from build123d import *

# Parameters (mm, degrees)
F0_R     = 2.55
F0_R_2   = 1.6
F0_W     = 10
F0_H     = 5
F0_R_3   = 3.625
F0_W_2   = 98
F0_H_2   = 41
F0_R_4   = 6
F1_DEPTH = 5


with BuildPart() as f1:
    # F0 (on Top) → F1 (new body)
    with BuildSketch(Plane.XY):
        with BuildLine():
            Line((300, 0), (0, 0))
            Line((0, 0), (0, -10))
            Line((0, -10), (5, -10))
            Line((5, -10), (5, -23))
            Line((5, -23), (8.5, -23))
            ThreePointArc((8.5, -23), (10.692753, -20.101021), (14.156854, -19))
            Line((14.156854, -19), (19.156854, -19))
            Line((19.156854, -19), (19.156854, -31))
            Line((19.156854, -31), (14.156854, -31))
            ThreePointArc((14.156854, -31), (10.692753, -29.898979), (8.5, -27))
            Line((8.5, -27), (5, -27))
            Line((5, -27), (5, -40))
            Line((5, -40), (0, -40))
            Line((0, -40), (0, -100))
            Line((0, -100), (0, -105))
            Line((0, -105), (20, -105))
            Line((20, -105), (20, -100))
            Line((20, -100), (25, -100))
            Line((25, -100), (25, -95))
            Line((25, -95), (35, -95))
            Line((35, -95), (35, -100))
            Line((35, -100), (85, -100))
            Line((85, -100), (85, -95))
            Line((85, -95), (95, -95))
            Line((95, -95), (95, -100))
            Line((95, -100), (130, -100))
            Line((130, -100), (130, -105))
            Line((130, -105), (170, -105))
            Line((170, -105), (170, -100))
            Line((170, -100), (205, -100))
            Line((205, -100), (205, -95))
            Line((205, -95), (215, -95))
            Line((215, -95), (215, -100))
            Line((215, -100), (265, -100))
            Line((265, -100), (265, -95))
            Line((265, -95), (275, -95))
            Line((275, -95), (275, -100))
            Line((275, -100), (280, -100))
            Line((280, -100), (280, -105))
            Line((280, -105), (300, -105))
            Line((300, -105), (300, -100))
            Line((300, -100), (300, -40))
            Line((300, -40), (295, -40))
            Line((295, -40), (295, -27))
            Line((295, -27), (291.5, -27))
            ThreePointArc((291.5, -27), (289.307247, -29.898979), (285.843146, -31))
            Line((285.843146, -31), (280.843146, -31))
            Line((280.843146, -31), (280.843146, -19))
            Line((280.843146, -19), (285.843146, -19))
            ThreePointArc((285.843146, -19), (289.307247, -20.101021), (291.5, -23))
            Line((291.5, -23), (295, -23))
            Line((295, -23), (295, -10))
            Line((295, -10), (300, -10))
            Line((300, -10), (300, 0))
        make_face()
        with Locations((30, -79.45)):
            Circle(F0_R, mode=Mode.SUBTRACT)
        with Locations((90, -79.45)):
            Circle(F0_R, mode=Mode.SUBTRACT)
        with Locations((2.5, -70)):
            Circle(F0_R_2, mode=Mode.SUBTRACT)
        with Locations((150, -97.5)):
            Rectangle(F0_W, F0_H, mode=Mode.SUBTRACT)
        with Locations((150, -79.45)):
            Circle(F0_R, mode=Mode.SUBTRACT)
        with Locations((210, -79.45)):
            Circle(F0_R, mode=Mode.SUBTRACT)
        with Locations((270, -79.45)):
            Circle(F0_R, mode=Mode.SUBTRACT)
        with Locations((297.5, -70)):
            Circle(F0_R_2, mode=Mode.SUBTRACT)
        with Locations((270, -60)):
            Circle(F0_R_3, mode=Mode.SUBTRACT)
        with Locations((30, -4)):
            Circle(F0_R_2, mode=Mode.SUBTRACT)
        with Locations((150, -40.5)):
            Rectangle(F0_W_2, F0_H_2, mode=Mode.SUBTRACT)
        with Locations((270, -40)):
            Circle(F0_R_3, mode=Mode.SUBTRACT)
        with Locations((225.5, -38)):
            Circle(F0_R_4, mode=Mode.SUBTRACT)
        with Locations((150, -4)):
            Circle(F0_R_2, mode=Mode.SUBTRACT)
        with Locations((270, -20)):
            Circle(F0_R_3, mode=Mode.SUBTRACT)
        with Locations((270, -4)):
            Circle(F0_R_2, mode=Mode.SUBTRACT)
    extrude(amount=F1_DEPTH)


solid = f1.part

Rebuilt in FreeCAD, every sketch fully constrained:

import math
import FreeCAD as App
import Part
import Sketcher
from FreeCAD import Vector


def add_polygon(sketch, points):
    """Adds a closed chain of lines whose ends are joined by coincident constraints."""
    first, n = sketch.GeometryCount, len(points)
    for a, b in zip(points, points[1:] + points[:1]):
        sketch.addGeometry(Part.LineSegment(App.Vector(*a, 0), App.Vector(*b, 0)), False)
    for i in range(n):
        sketch.addConstraint(Sketcher.Constraint("Coincident", first + i, 2, first + (i + 1) % n, 1))

doc = App.newDocument("Part")
params = doc.addObject("Spreadsheet::Sheet", "Params")
for row, (alias, value) in enumerate([
    ("sketch1_diameter", "12 mm"),
    ("sketch1_diameter2", "5.1 mm"),
    ("sketch1_diameter3", "3.2 mm"),
    ("sketch1_diameter4", "7.25 mm"),
    ("sketch1_width", "300 mm"),
    ("pad1_length", "5 mm"),
], start=1):
    params.set(f"A{row}", alias)
    params.set(f"B{row}", "=" + value)
    params.setAlias(f"B{row}", alias)

body = doc.addObject("PartDesign::Body", "Body")

# Sketch on XY plane
sketch1 = body.newObject("Sketcher::SketchObject", "Sketch")
sketch1.AttachmentSupport = (doc.getObject("XY_Plane"), [""])
sketch1.MapMode = "FlatFace"
sketch1.addGeometry(Part.LineSegment(Vector(300, 0, 0), Vector(0, 0, 0)), False)  # 0
sketch1.addGeometry(Part.LineSegment(Vector(0, 0, 0), Vector(0, -10, 0)), False)  # 1
sketch1.addGeometry(Part.LineSegment(Vector(0, -10, 0), Vector(5, -10, 0)), False)  # 2
sketch1.addGeometry(Part.LineSegment(Vector(5, -10, 0), Vector(5, -23, 0)), False)  # 3
sketch1.addGeometry(Part.LineSegment(Vector(5, -23, 0), Vector(8.5, -23, 0)), False)  # 4
sketch1.addGeometry(Part.ArcOfCircle(Part.Circle(Vector(14.2, -25, 0), Vector(0, 0, 1), 6), math.radians(90), math.radians(161)), False)  # 5
sketch1.addGeometry(Part.LineSegment(Vector(14.2, -19, 0), Vector(19.2, -19, 0)), False)  # 6
sketch1.addGeometry(Part.LineSegment(Vector(19.2, -19, 0), Vector(19.2, -31, 0)), False)  # 7
sketch1.addGeometry(Part.LineSegment(Vector(19.2, -31, 0), Vector(14.2, -31, 0)), False)  # 8
sketch1.addGeometry(Part.ArcOfCircle(Part.Circle(Vector(14.2, -25, 0), Vector(0, 0, 1), 6), math.radians(-161), math.radians(-90)), False)  # 9
sketch1.addGeometry(Part.LineSegment(Vector(8.5, -27, 0), Vector(5, -27, 0)), False)  # 10
sketch1.addGeometry(Part.LineSegment(Vector(5, -27, 0), Vector(5, -40, 0)), False)  # 11
sketch1.addGeometry(Part.LineSegment(Vector(5, -40, 0), Vector(0, -40, 0)), False)  # 12
sketch1.addGeometry(Part.LineSegment(Vector(0, -40, 0), Vector(0, -105, 0)), False)  # 13
sketch1.addGeometry(Part.LineSegment(Vector(0, -105, 0), Vector(20, -105, 0)), False)  # 14
sketch1.addGeometry(Part.LineSegment(Vector(20, -105, 0), Vector(20, -100, 0)), False)  # 15
sketch1.addGeometry(Part.LineSegment(Vector(20, -100, 0), Vector(25, -100, 0)), False)  # 16
sketch1.addGeometry(Part.LineSegment(Vector(25, -100, 0), Vector(25, -95, 0)), False)  # 17
sketch1.addGeometry(Part.LineSegment(Vector(25, -95, 0), Vector(35, -95, 0)), False)  # 18
sketch1.addGeometry(Part.LineSegment(Vector(35, -95, 0), Vector(35, -100, 0)), False)  # 19
sketch1.addGeometry(Part.LineSegment(Vector(35, -100, 0), Vector(85, -100, 0)), False)  # 20
sketch1.addGeometry(Part.LineSegment(Vector(85, -100, 0), Vector(85, -95, 0)), False)  # 21
sketch1.addGeometry(Part.LineSegment(Vector(85, -95, 0), Vector(95, -95, 0)), False)  # 22
sketch1.addGeometry(Part.LineSegment(Vector(95, -95, 0), Vector(95, -100, 0)), False)  # 23
sketch1.addGeometry(Part.LineSegment(Vector(95, -100, 0), Vector(130, -100, 0)), False)  # 24
sketch1.addGeometry(Part.LineSegment(Vector(130, -100, 0), Vector(130, -105, 0)), False)  # 25
sketch1.addGeometry(Part.LineSegment(Vector(130, -105, 0), Vector(170, -105, 0)), False)  # 26
sketch1.addGeometry(Part.LineSegment(Vector(170, -105, 0), Vector(170, -100, 0)), False)  # 27
sketch1.addGeometry(Part.LineSegment(Vector(170, -100, 0), Vector(205, -100, 0)), False)  # 28
sketch1.addGeometry(Part.LineSegment(Vector(205, -100, 0), Vector(205, -95, 0)), False)  # 29
sketch1.addGeometry(Part.LineSegment(Vector(205, -95, 0), Vector(215, -95, 0)), False)  # 30
sketch1.addGeometry(Part.LineSegment(Vector(215, -95, 0), Vector(215, -100, 0)), False)  # 31
sketch1.addGeometry(Part.LineSegment(Vector(215, -100, 0), Vector(265, -100, 0)), False)  # 32
sketch1.addGeometry(Part.LineSegment(Vector(265, -100, 0), Vector(265, -95, 0)), False)  # 33
sketch1.addGeometry(Part.LineSegment(Vector(265, -95, 0), Vector(275, -95, 0)), False)  # 34
sketch1.addGeometry(Part.LineSegment(Vector(275, -95, 0), Vector(275, -100, 0)), False)  # 35
sketch1.addGeometry(Part.LineSegment(Vector(275, -100, 0), Vector(280, -100, 0)), False)  # 36
sketch1.addGeometry(Part.LineSegment(Vector(280, -100, 0), Vector(280, -105, 0)), False)  # 37
sketch1.addGeometry(Part.LineSegment(Vector(280, -105, 0), Vector(300, -105, 0)), False)  # 38
sketch1.addGeometry(Part.LineSegment(Vector(300, -105, 0), Vector(300, -40, 0)), False)  # 39
sketch1.addGeometry(Part.LineSegment(Vector(300, -40, 0), Vector(295, -40, 0)), False)  # 40
sketch1.addGeometry(Part.LineSegment(Vector(295, -40, 0), Vector(295, -27, 0)), False)  # 41
sketch1.addGeometry(Part.LineSegment(Vector(295, -27, 0), Vector(291.5, -27, 0)), False)  # 42
sketch1.addGeometry(Part.ArcOfCircle(Part.Circle(Vector(285.8, -25, 0), Vector(0, 0, 1), 6), math.radians(-90), math.radians(-19)), False)  # 43
sketch1.addGeometry(Part.LineSegment(Vector(285.8, -31, 0), Vector(280.8, -31, 0)), False)  # 44
sketch1.addGeometry(Part.LineSegment(Vector(280.8, -31, 0), Vector(280.8, -19, 0)), False)  # 45
sketch1.addGeometry(Part.LineSegment(Vector(280.8, -19, 0), Vector(285.8, -19, 0)), False)  # 46
sketch1.addGeometry(Part.ArcOfCircle(Part.Circle(Vector(285.8, -25, 0), Vector(0, 0, 1), 6), math.radians(19), math.radians(90)), False)  # 47
sketch1.addGeometry(Part.LineSegment(Vector(291.5, -23, 0), Vector(295, -23, 0)), False)  # 48
sketch1.addGeometry(Part.LineSegment(Vector(295, -23, 0), Vector(295, -10, 0)), False)  # 49
sketch1.addGeometry(Part.LineSegment(Vector(295, -10, 0), Vector(300, -10, 0)), False)  # 50
sketch1.addGeometry(Part.LineSegment(Vector(300, -10, 0), Vector(300, 0, 0)), False)  # 51
sketch1.addGeometry(Part.Circle(Vector(30, -79.5, 0), Vector(0, 0, 1), 2.5), False)  # 52
add_polygon(sketch1, [(155, -100), (145, -100), (145, -95), (155, -95)])  # lines 53-56
sketch1.addGeometry(Part.Circle(Vector(90, -79.5, 0), Vector(0, 0, 1), 2.5), False)  # 57
sketch1.addGeometry(Part.Circle(Vector(150, -79.5, 0), Vector(0, 0, 1), 2.5), False)  # 58
sketch1.addGeometry(Part.Circle(Vector(2.5, -70, 0), Vector(0, 0, 1), 1.6), False)  # 59
sketch1.addGeometry(Part.Circle(Vector(210, -79.5, 0), Vector(0, 0, 1), 2.5), False)  # 60
sketch1.addGeometry(Part.Circle(Vector(270, -79.5, 0), Vector(0, 0, 1), 2.5), False)  # 61
sketch1.addGeometry(Part.Circle(Vector(297.5, -70, 0), Vector(0, 0, 1), 1.6), False)  # 62
sketch1.addGeometry(Part.Circle(Vector(270, -60, 0), Vector(0, 0, 1), 3.6), False)  # 63
add_polygon(sketch1, [(199, -61), (101, -61), (101, -20), (199, -20)])  # lines 64-67
sketch1.addGeometry(Part.Circle(Vector(30, -4, 0), Vector(0, 0, 1), 1.6), False)  # 68
sketch1.addGeometry(Part.Circle(Vector(150, -4, 0), Vector(0, 0, 1), 1.6), False)  # 69
sketch1.addGeometry(Part.Circle(Vector(270, -40, 0), Vector(0, 0, 1), 3.6), False)  # 70
sketch1.addGeometry(Part.Circle(Vector(225.5, -38, 0), Vector(0, 0, 1), 6), False)  # 71
sketch1.addGeometry(Part.Circle(Vector(270, -20, 0), Vector(0, 0, 1), 3.6), False)  # 72
sketch1.addGeometry(Part.Circle(Vector(270, -4, 0), Vector(0, 0, 1), 1.6), False)  # 73
sketch1.addConstraint(Sketcher.Constraint("Coincident", 0, 2, 1, 1))
sketch1.addConstraint(Sketcher.Constraint("Coincident", 1, 2, 2, 1))
sketch1.addConstraint(Sketcher.Constraint("Coincident", 2, 2, 3, 1))
sketch1.addConstraint(Sketcher.Constraint("Coincident", 3, 2, 4, 1))
sketch1.addConstraint(Sketcher.Constraint("Coincident", 4, 2, 5, 2))
sketch1.addConstraint(Sketcher.Constraint("Tangent", 5, 1, 6, 1))
sketch1.addConstraint(Sketcher.Constraint("Coincident", 6, 2, 7, 1))
sketch1.addConstraint(Sketcher.Constraint("Coincident", 7, 2, 8, 1))
sketch1.addConstraint(Sketcher.Constraint("Tangent", 8, 2, 9, 2))
sketch1.addConstraint(Sketcher.Constraint("Coincident", 9, 1, 10, 1))
sketch1.addConstraint(Sketcher.Constraint("Coincident", 10, 2, 11, 1))
sketch1.addConstraint(Sketcher.Constraint("Coincident", 11, 2, 12, 1))
sketch1.addConstraint(Sketcher.Constraint("Coincident", 12, 2, 13, 1))
sketch1.addConstraint(Sketcher.Constraint("Coincident", 13, 2, 14, 1))
sketch1.addConstraint(Sketcher.Constraint("Coincident", 14, 2, 15, 1))
sketch1.addConstraint(Sketcher.Constraint("Coincident", 15, 2, 16, 1))
sketch1.addConstraint(Sketcher.Constraint("Coincident", 16, 2, 17, 1))
sketch1.addConstraint(Sketcher.Constraint("Coincident", 17, 2, 18, 1))
sketch1.addConstraint(Sketcher.Constraint("Coincident", 18, 2, 19, 1))
sketch1.addConstraint(Sketcher.Constraint("Coincident", 19, 2, 20, 1))
sketch1.addConstraint(Sketcher.Constraint("Coincident", 20, 2, 21, 1))
sketch1.addConstraint(Sketcher.Constraint("Coincident", 21, 2, 22, 1))
sketch1.addConstraint(Sketcher.Constraint("Coincident", 22, 2, 23, 1))
sketch1.addConstraint(Sketcher.Constraint("Coincident", 23, 2, 24, 1))
sketch1.addConstraint(Sketcher.Constraint("Coincident", 24, 2, 25, 1))
sketch1.addConstraint(Sketcher.Constraint("Coincident", 25, 2, 26, 1))
sketch1.addConstraint(Sketcher.Constraint("Coincident", 26, 2, 27, 1))
sketch1.addConstraint(Sketcher.Constraint("Coincident", 27, 2, 28, 1))
sketch1.addConstraint(Sketcher.Constraint("Coincident", 28, 2, 29, 1))
sketch1.addConstraint(Sketcher.Constraint("Coincident", 29, 2, 30, 1))
sketch1.addConstraint(Sketcher.Constraint("Coincident", 30, 2, 31, 1))
sketch1.addConstraint(Sketcher.Constraint("Coincident", 31, 2, 32, 1))
sketch1.addConstraint(Sketcher.Constraint("Coincident", 32, 2, 33, 1))
sketch1.addConstraint(Sketcher.Constraint("Coincident", 33, 2, 34, 1))
sketch1.addConstraint(Sketcher.Constraint("Coincident", 34, 2, 35, 1))
sketch1.addConstraint(Sketcher.Constraint("Coincident", 35, 2, 36, 1))
sketch1.addConstraint(Sketcher.Constraint("Coincident", 36, 2, 37, 1))
sketch1.addConstraint(Sketcher.Constraint("Coincident", 37, 2, 38, 1))
sketch1.addConstraint(Sketcher.Constraint("Coincident", 38, 2, 39, 1))
sketch1.addConstraint(Sketcher.Constraint("Coincident", 39, 2, 40, 1))
sketch1.addConstraint(Sketcher.Constraint("Coincident", 40, 2, 41, 1))
sketch1.addConstraint(Sketcher.Constraint("Coincident", 41, 2, 42, 1))
sketch1.addConstraint(Sketcher.Constraint("Coincident", 42, 2, 43, 2))
sketch1.addConstraint(Sketcher.Constraint("Tangent", 43, 1, 44, 1))
sketch1.addConstraint(Sketcher.Constraint("Coincident", 44, 2, 45, 1))
sketch1.addConstraint(Sketcher.Constraint("Coincident", 45, 2, 46, 1))
sketch1.addConstraint(Sketcher.Constraint("Tangent", 46, 2, 47, 2))
sketch1.addConstraint(Sketcher.Constraint("Coincident", 47, 1, 48, 1))
sketch1.addConstraint(Sketcher.Constraint("Coincident", 48, 2, 49, 1))
sketch1.addConstraint(Sketcher.Constraint("Coincident", 49, 2, 50, 1))
sketch1.addConstraint(Sketcher.Constraint("Coincident", 50, 2, 51, 1))
sketch1.addConstraint(Sketcher.Constraint("Coincident", 51, 2, 0, 1))
sketch1.addConstraint(Sketcher.Constraint("Horizontal", 0))
sketch1.addConstraint(Sketcher.Constraint("Vertical", 1))
sketch1.addConstraint(Sketcher.Constraint("Horizontal", 2))
sketch1.addConstraint(Sketcher.Constraint("Vertical", 3))
sketch1.addConstraint(Sketcher.Constraint("Horizontal", 4))
sketch1.addConstraint(Sketcher.Constraint("Horizontal", 6))
sketch1.addConstraint(Sketcher.Constraint("Vertical", 7))
sketch1.addConstraint(Sketcher.Constraint("Horizontal", 8))
sketch1.addConstraint(Sketcher.Constraint("Horizontal", 10))
sketch1.addConstraint(Sketcher.Constraint("Vertical", 11))
sketch1.addConstraint(Sketcher.Constraint("Horizontal", 12))
sketch1.addConstraint(Sketcher.Constraint("Vertical", 13))
sketch1.addConstraint(Sketcher.Constraint("Horizontal", 14))
sketch1.addConstraint(Sketcher.Constraint("Vertical", 15))
sketch1.addConstraint(Sketcher.Constraint("Horizontal", 16))
sketch1.addConstraint(Sketcher.Constraint("Vertical", 17))
sketch1.addConstraint(Sketcher.Constraint("Horizontal", 18))
sketch1.addConstraint(Sketcher.Constraint("Vertical", 19))
sketch1.addConstraint(Sketcher.Constraint("Horizontal", 20))
sketch1.addConstraint(Sketcher.Constraint("Vertical", 21))
sketch1.addConstraint(Sketcher.Constraint("Horizontal", 22))
sketch1.addConstraint(Sketcher.Constraint("Vertical", 23))
sketch1.addConstraint(Sketcher.Constraint("Horizontal", 24))
sketch1.addConstraint(Sketcher.Constraint("Vertical", 25))
sketch1.addConstraint(Sketcher.Constraint("Horizontal", 26))
sketch1.addConstraint(Sketcher.Constraint("Vertical", 27))
sketch1.addConstraint(Sketcher.Constraint("Horizontal", 28))
sketch1.addConstraint(Sketcher.Constraint("Vertical", 29))
sketch1.addConstraint(Sketcher.Constraint("Horizontal", 30))
sketch1.addConstraint(Sketcher.Constraint("Vertical", 31))
sketch1.addConstraint(Sketcher.Constraint("Horizontal", 32))
sketch1.addConstraint(Sketcher.Constraint("Vertical", 33))
sketch1.addConstraint(Sketcher.Constraint("Horizontal", 34))
sketch1.addConstraint(Sketcher.Constraint("Vertical", 35))
sketch1.addConstraint(Sketcher.Constraint("Horizontal", 36))
sketch1.addConstraint(Sketcher.Constraint("Vertical", 37))
sketch1.addConstraint(Sketcher.Constraint("Horizontal", 38))
sketch1.addConstraint(Sketcher.Constraint("Vertical", 39))
sketch1.addConstraint(Sketcher.Constraint("Horizontal", 40))
sketch1.addConstraint(Sketcher.Constraint("Vertical", 41))
sketch1.addConstraint(Sketcher.Constraint("Horizontal", 42))
sketch1.addConstraint(Sketcher.Constraint("Horizontal", 44))
sketch1.addConstraint(Sketcher.Constraint("Vertical", 45))
sketch1.addConstraint(Sketcher.Constraint("Horizontal", 46))
sketch1.addConstraint(Sketcher.Constraint("Horizontal", 48))
sketch1.addConstraint(Sketcher.Constraint("Vertical", 49))
sketch1.addConstraint(Sketcher.Constraint("Horizontal", 50))
sketch1.addConstraint(Sketcher.Constraint("Vertical", 51))
sketch1.addConstraint(Sketcher.Constraint("Horizontal", 53))
sketch1.addConstraint(Sketcher.Constraint("Vertical", 54))
sketch1.addConstraint(Sketcher.Constraint("Horizontal", 55))
sketch1.addConstraint(Sketcher.Constraint("Vertical", 56))
sketch1.addConstraint(Sketcher.Constraint("Horizontal", 64))
sketch1.addConstraint(Sketcher.Constraint("Vertical", 65))
sketch1.addConstraint(Sketcher.Constraint("Horizontal", 66))
sketch1.addConstraint(Sketcher.Constraint("Vertical", 67))
sketch1.addConstraint(Sketcher.Constraint("Coincident", 0, 2, -1, 1))
sketch1.addConstraint(Sketcher.Constraint("Coincident", 9, 3, 5, 3))
sketch1.addConstraint(Sketcher.Constraint("Coincident", 47, 3, 43, 3))
sketch1.addConstraint(Sketcher.Constraint("Equal", 5, 9))
sketch1.addConstraint(Sketcher.Constraint("Equal", 9, 43))
sketch1.addConstraint(Sketcher.Constraint("Equal", 43, 47))
sketch1.addConstraint(Sketcher.Constraint("Equal", 52, 57))
sketch1.addConstraint(Sketcher.Constraint("Equal", 57, 58))
sketch1.addConstraint(Sketcher.Constraint("Equal", 58, 60))
sketch1.addConstraint(Sketcher.Constraint("Equal", 60, 61))
sketch1.addConstraint(Sketcher.Constraint("Equal", 59, 62))
sketch1.addConstraint(Sketcher.Constraint("Equal", 62, 68))
sketch1.addConstraint(Sketcher.Constraint("Equal", 68, 69))
sketch1.addConstraint(Sketcher.Constraint("Equal", 63, 70))
sketch1.addConstraint(Sketcher.Constraint("Equal", 70, 72))
sketch1.addConstraint(Sketcher.Constraint("Equal", 69, 73))
sketch1.addConstraint(Sketcher.Constraint("PointOnObject", 12, 2, -2))
sketch1.addConstraint(Sketcher.Constraint("Horizontal", 9, 3, 43, 3))
sketch1.addConstraint(Sketcher.Constraint("Horizontal", 52, 3, 57, 3))
sketch1.addConstraint(Sketcher.Constraint("Horizontal", 57, 3, 58, 3))
sketch1.addConstraint(Sketcher.Constraint("Horizontal", 58, 3, 60, 3))
sketch1.addConstraint(Sketcher.Constraint("Horizontal", 60, 3, 61, 3))
sketch1.addConstraint(Sketcher.Constraint("Horizontal", 59, 3, 62, 3))
sketch1.addConstraint(Sketcher.Constraint("Horizontal", 68, 3, 69, 3))
sketch1.addConstraint(Sketcher.Constraint("Horizontal", 69, 3, 73, 3))
sketch1.addConstraint(Sketcher.Constraint("Horizontal", 70, 3, 11, 2))
sketch1.addConstraint(Sketcher.Constraint("Horizontal", 16, 2, 19, 2))
sketch1.addConstraint(Sketcher.Constraint("Horizontal", 18, 2, 21, 2))
sketch1.addConstraint(Sketcher.Constraint("Horizontal", 20, 2, 23, 2))
sketch1.addConstraint(Sketcher.Constraint("Horizontal", 14, 2, 25, 2))
sketch1.addConstraint(Sketcher.Constraint("Horizontal", 24, 2, 27, 2))
sketch1.addConstraint(Sketcher.Constraint("Horizontal", 22, 2, 29, 2))
sketch1.addConstraint(Sketcher.Constraint("Horizontal", 28, 2, 31, 2))
sketch1.addConstraint(Sketcher.Constraint("Horizontal", 30, 2, 33, 2))
sketch1.addConstraint(Sketcher.Constraint("Horizontal", 32, 2, 35, 2))
sketch1.addConstraint(Sketcher.Constraint("Horizontal", 26, 2, 37, 2))
sketch1.addConstraint(Sketcher.Constraint("Horizontal", 12, 2, 39, 2))
sketch1.addConstraint(Sketcher.Constraint("Horizontal", 10, 2, 41, 2))
sketch1.addConstraint(Sketcher.Constraint("Horizontal", 4, 2, 47, 1))
sketch1.addConstraint(Sketcher.Constraint("Horizontal", 2, 2, 49, 2))
sketch1.addConstraint(Sketcher.Constraint("Horizontal", 36, 2, 53, 2))
sketch1.addConstraint(Sketcher.Constraint("Horizontal", 34, 2, 54, 2))
sketch1.addConstraint(Sketcher.Constraint("Horizontal", 72, 3, 65, 2))
sketch1.addConstraint(Sketcher.Constraint("Vertical", 61, 3, 63, 3))
sketch1.addConstraint(Sketcher.Constraint("Vertical", 52, 3, 68, 3))
sketch1.addConstraint(Sketcher.Constraint("Vertical", 58, 3, 69, 3))
sketch1.addConstraint(Sketcher.Constraint("Vertical", 63, 3, 70, 3))
sketch1.addConstraint(Sketcher.Constraint("Vertical", 70, 3, 72, 3))
sketch1.addConstraint(Sketcher.Constraint("Vertical", 72, 3, 73, 3))
sketch1.addConstraint(Sketcher.Constraint("Vertical", 4, 2, 9, 1))
sketch1.addConstraint(Sketcher.Constraint("Vertical", 3, 2, 10, 2))
sketch1.addConstraint(Sketcher.Constraint("Vertical", 41, 2, 48, 2))
sketch1.addConstraint(Sketcher.Constraint("Vertical", 39, 2, 50, 2))
sketch1.addConstraint(Sketcher.Constraint("Equal", 2, 6))
sketch1.addConstraint(Sketcher.Constraint("Equal", 12, 16))
sketch1.addConstraint(Sketcher.Constraint("Equal", 18, 22))
sketch1.addConstraint(Sketcher.Constraint("Equal", 24, 28))
sketch1.addConstraint(Sketcher.Constraint("Equal", 22, 30))
sketch1.addConstraint(Sketcher.Constraint("Equal", 20, 32))
sketch1.addConstraint(Sketcher.Constraint("Equal", 30, 34))
sketch1.addConstraint(Sketcher.Constraint("Equal", 16, 36))
sketch1.addConstraint(Sketcher.Constraint("Equal", 14, 38))
sketch1.addConstraint(Sketcher.Constraint("Equal", 36, 40))
sketch1.addConstraint(Sketcher.Constraint("Equal", 10, 42))
sketch1.addConstraint(Sketcher.Constraint("Equal", 40, 44))
sketch1.addConstraint(Sketcher.Constraint("Equal", 34, 53))
sketch1.addConstraint(Sketcher.Constraint("Equal", 55, 1))
sketch1.addConstraint(Sketcher.Constraint("Equal", 3, 11))
sketch1.addConstraint(Sketcher.Constraint("Equal", 50, 15))
sketch1.addConstraint(Sketcher.Constraint("Equal", 15, 17))
sketch1.addConstraint(Sketcher.Constraint("Diameter", 71, 12.0))
sketch1.addConstraint(Sketcher.Constraint("Diameter", 52, 5.1))
sketch1.addConstraint(Sketcher.Constraint("Diameter", 59, 3.2))
sketch1.addConstraint(Sketcher.Constraint("Diameter", 63, 7.25))
sketch1.addConstraint(Sketcher.Constraint("DistanceX", 0, 2, 0, 1, 300.0))
sketch1.addConstraint(Sketcher.Constraint("DistanceX", 2, 1, 2, 2, 5.0))
sketch1.addConstraint(Sketcher.Constraint("DistanceX", 14, 1, 14, 2, 20.0))
sketch1.addConstraint(Sketcher.Constraint("DistanceX", 18, 1, 18, 2, 10.0))
sketch1.addConstraint(Sketcher.Constraint("DistanceX", 20, 1, 20, 2, 50.0))
sketch1.addConstraint(Sketcher.Constraint("DistanceX", 24, 1, 24, 2, 35.0))
sketch1.addConstraint(Sketcher.Constraint("DistanceX", 64, 2, 64, 1, 98.0))
sketch1.addConstraint(Sketcher.Constraint("DistanceY", 3, 2, 3, 1, 13.0))
sketch1.addConstraint(Sketcher.Constraint("DistanceY", 7, 2, 7, 1, 12.0))
sketch1.addConstraint(Sketcher.Constraint("DistanceY", 13, 2, 13, 1, 65.0))
sketch1.addConstraint(Sketcher.Constraint("DistanceY", 65, 1, 65, 2, 41.0))
sketch1.addConstraint(Sketcher.Constraint("DistanceX", 4, 1, 4, 2, 3.5))
sketch1.addConstraint(Sketcher.Constraint("DistanceX", -1, 1, 52, 3, 30.0))
sketch1.addConstraint(Sketcher.Constraint("DistanceX", -1, 1, 57, 3, 90.0))
sketch1.addConstraint(Sketcher.Constraint("DistanceX", -1, 1, 58, 3, 150.0))
sketch1.addConstraint(Sketcher.Constraint("DistanceY", 59, 3, -1, 1, 70.0))
sketch1.addConstraint(Sketcher.Constraint("DistanceX", -1, 1, 60, 3, 210.0))
sketch1.addConstraint(Sketcher.Constraint("DistanceX", -1, 1, 61, 3, 270.0))
sketch1.addConstraint(Sketcher.Constraint("DistanceY", 63, 3, -1, 1, 60.0))
sketch1.addConstraint(Sketcher.Constraint("DistanceY", 68, 3, -1, 1, 4.0))
sketch1.addConstraint(Sketcher.Constraint("DistanceY", 70, 3, -1, 1, 40.0))
sketch1.addConstraint(Sketcher.Constraint("DistanceY", 71, 3, -1, 1, 38.0))
sketch1.addConstraint(Sketcher.Constraint("DistanceY", 72, 3, -1, 1, 20.0))
sketch1.addConstraint(Sketcher.Constraint("DistanceX", -1, 1, 53, 2, 145.0))
sketch1.addConstraint(Sketcher.Constraint("DistanceX", -1, 1, 64, 2, 101.0))
sketch1.addConstraint(Sketcher.Constraint("DistanceX", -1, 1, 59, 3, 2.5))
sketch1.addConstraint(Sketcher.Constraint("DistanceX", -1, 1, 62, 3, 297.5))
sketch1.addConstraint(Sketcher.Constraint("DistanceX", -1, 1, 71, 3, 225.5))
sketch1.addConstraint(Sketcher.Constraint("DistanceY", 52, 3, -1, 1, 79.45))
sketch1.setExpression("Constraints[186]", "Params.sketch1_diameter")
sketch1.setExpression("Constraints[187]", "Params.sketch1_diameter2")
sketch1.setExpression("Constraints[188]", "Params.sketch1_diameter3")
sketch1.setExpression("Constraints[189]", "Params.sketch1_diameter4")
sketch1.setExpression("Constraints[190]", "Params.sketch1_width")
pad1 = body.newObject("PartDesign::Pad", "Pad")
pad1.Profile = sketch1
pad1.setExpression("Length", "Params.pad1_length")

doc.recompute()
